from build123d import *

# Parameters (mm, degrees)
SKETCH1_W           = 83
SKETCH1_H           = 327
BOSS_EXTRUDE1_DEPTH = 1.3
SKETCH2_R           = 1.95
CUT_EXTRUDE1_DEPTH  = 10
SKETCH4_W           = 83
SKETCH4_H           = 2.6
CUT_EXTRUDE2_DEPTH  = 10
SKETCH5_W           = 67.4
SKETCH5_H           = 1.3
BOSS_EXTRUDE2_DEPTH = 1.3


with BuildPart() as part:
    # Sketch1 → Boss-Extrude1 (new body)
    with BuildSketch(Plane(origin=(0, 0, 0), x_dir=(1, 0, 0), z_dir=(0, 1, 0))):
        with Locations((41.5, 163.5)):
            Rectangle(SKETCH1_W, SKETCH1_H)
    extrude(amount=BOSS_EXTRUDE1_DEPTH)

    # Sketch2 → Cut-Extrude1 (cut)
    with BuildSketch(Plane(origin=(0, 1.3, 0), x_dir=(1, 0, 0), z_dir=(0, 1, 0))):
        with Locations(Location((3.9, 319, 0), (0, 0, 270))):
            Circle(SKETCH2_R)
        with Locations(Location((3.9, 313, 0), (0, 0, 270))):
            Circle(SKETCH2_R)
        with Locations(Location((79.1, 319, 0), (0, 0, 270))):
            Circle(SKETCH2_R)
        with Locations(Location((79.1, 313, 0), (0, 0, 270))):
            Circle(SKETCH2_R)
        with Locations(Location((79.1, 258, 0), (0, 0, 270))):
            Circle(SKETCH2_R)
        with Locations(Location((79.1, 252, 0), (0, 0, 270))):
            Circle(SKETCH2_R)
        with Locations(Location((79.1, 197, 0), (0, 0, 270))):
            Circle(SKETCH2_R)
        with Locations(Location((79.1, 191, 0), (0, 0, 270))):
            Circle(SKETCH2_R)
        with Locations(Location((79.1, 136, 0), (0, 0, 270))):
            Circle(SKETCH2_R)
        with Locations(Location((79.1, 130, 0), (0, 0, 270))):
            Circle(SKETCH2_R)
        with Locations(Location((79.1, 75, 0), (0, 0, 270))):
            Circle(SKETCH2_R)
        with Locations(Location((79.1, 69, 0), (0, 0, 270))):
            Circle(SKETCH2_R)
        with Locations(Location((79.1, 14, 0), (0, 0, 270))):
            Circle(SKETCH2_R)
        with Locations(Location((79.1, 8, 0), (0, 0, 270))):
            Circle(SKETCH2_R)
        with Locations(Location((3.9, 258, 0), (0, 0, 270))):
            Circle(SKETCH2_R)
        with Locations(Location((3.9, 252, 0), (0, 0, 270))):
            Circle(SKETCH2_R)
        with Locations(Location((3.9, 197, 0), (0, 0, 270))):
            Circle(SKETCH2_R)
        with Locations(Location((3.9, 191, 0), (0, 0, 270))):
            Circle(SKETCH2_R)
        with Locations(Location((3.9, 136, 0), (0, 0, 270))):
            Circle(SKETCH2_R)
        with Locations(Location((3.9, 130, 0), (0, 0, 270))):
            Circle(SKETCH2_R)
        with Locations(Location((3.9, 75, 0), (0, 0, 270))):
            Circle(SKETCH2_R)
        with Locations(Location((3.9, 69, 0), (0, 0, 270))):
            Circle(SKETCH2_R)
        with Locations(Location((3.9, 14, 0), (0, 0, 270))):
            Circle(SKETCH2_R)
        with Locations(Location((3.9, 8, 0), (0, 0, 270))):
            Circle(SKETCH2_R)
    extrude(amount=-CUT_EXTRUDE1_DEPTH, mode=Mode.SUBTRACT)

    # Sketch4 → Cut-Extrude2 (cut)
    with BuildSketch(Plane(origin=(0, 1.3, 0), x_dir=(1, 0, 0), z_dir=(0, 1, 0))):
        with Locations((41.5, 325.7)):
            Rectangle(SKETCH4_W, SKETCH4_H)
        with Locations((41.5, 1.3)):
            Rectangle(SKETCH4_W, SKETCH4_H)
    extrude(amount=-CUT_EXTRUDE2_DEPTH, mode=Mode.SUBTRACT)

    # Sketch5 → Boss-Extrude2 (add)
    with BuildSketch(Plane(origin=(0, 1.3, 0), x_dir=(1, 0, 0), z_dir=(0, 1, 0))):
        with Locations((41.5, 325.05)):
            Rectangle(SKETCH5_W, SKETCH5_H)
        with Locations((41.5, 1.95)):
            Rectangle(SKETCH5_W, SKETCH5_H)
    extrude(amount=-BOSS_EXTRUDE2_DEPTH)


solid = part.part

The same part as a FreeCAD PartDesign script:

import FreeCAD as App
import Part
import Sketcher
from FreeCAD import Vector
Q = App.Units.Quantity

doc = App.newDocument("Part")
body = doc.addObject("PartDesign::Body", "Body")

# Sketch on XZ plane
sketch1 = body.newObject("Sketcher::SketchObject", "Sketch")
sketch1.AttachmentSupport = (doc.getObject("XZ_Plane"), [""])
sketch1.MapMode = "FlatFace"
sketch1.addGeometry([
    Part.LineSegment(Vector(0, -327, 0), Vector(0, 0, 0)),
    Part.LineSegment(Vector(0, 0, 0), Vector(83, 0, 0)),
    Part.LineSegment(Vector(83, 0, 0), Vector(83, -327, 0)),
    Part.LineSegment(Vector(83, -327, 0), Vector(0, -327, 0)),
], False)
sketch1.addConstraint([
    Sketcher.Constraint("Coincident", 0, 2, 1, 1),
    Sketcher.Constraint("Coincident", 1, 2, 2, 1),
    Sketcher.Constraint("Coincident", 2, 2, 3, 1),
    Sketcher.Constraint("Coincident", 3, 2, 0, 1),
    Sketcher.Constraint("Vertical", 0),
    Sketcher.Constraint("Horizontal", 1),
    Sketcher.Constraint("Vertical", 2),
    Sketcher.Constraint("Horizontal", 3),
    Sketcher.Constraint("Coincident", 0, 2, -1, 1),
    Sketcher.Constraint("DistanceX", 1, 1, 1, 2, Q("83 mm")),
    Sketcher.Constraint("DistanceY", 0, 1, 0, 2, Q("327 mm")),
])
pad1 = body.newObject("PartDesign::Pad", "Pad")
pad1.Profile = sketch1
pad1.Length = 1.3
pad1.Reversed = True

# Sketch on XZ plane
sketch2 = body.newObject("Sketcher::SketchObject", "Sketch001")
sketch2.AttachmentSupport = (doc.getObject("XZ_Plane"), [""])
sketch2.MapMode = "FlatFace"
sketch2.AttachmentOffset = App.Placement(Vector(0, 0, -1.3), App.Rotation())
sketch2.addGeometry([
    Part.Circle(Vector(3.9, -319, 0), Vector(0, 0, 1), 1.9),  # 0
    Part.Circle(Vector(3.9, -313, 0), Vector(0, 0, 1), 1.9),  # 1
    Part.Circle(Vector(79.1, -319, 0), Vector(0, 0, 1), 1.9),  # 2
    Part.Circle(Vector(79.1, -313, 0), Vector(0, 0, 1), 1.9),  # 3
    Part.Circle(Vector(79.1, -258, 0), Vector(0, 0, 1), 1.9),  # 4
    Part.Circle(Vector(79.1, -252, 0), Vector(0, 0, 1), 1.9),  # 5
    Part.Circle(Vector(79.1, -197, 0), Vector(0, 0, 1), 1.9),  # 6
    Part.Circle(Vector(79.1, -191, 0), Vector(0, 0, 1), 1.9),  # 7
    Part.Circle(Vector(79.1, -136, 0), Vector(0, 0, 1), 1.9),  # 8
    Part.Circle(Vector(79.1, -130, 0), Vector(0, 0, 1), 1.9),  # 9
    Part.Circle(Vector(79.1, -75, 0), Vector(0, 0, 1), 1.9),  # 10
    Part.Circle(Vector(79.1, -69, 0), Vector(0, 0, 1), 1.9),  # 11
    Part.Circle(Vector(79.1, -14, 0), Vector(0, 0, 1), 1.9),  # 12
    Part.Circle(Vector(79.1, -8, 0), Vector(0, 0, 1), 1.9),  # 13
    Part.Circle(Vector(3.9, -258, 0), Vector(0, 0, 1), 1.9),  # 14
    Part.Circle(Vector(3.9, -252, 0), Vector(0, 0, 1), 1.9),  # 15
    Part.Circle(Vector(3.9, -197, 0), Vector(0, 0, 1), 1.9),  # 16
    Part.Circle(Vector(3.9, -191, 0), Vector(0, 0, 1), 1.9),  # 17
    Part.Circle(Vector(3.9, -136, 0), Vector(0, 0, 1), 1.9),  # 18
    Part.Circle(Vector(3.9, -130, 0), Vector(0, 0, 1), 1.9),  # 19
    Part.Circle(Vector(3.9, -75, 0), Vector(0, 0, 1), 1.9),  # 20
    Part.Circle(Vector(3.9, -69, 0), Vector(0, 0, 1), 1.9),  # 21
    Part.Circle(Vector(3.9, -14, 0), Vector(0, 0, 1), 1.9),  # 22
    Part.Circle(Vector(3.9, -8, 0), Vector(0, 0, 1), 1.9),  # 23
], False)
sketch2.addConstraint([
    Sketcher.Constraint("Equal", 0, 1),
    Sketcher.Constraint("Equal", 1, 2),
    Sketcher.Constraint("Equal", 2, 3),
    Sketcher.Constraint("Equal", 3, 4),
    Sketcher.Constraint("Equal", 4, 5),
    Sketcher.Constraint("Equal", 5, 6),
    Sketcher.Constraint("Equal", 6, 7),
    Sketcher.Constraint("Equal", 7, 8),
    Sketcher.Constraint("Equal", 8, 9),
    Sketcher.Constraint("Equal", 9, 10),
    Sketcher.Constraint("Equal", 10, 11),
    Sketcher.Constraint("Equal", 11, 12),
    Sketcher.Constraint("Equal", 12, 13),
    Sketcher.Constraint("Equal", 13, 14),
    Sketcher.Constraint("Equal", 14, 15),
    Sketcher.Constraint("Equal", 15, 16),
    Sketcher.Constraint("Equal", 16, 17),
    Sketcher.Constraint("Equal", 17, 18),
    Sketcher.Constraint("Equal", 18, 19),
    Sketcher.Constraint("Equal", 19, 20),
    Sketcher.Constraint("Equal", 20, 21),
    Sketcher.Constraint("Equal", 21, 22),
    Sketcher.Constraint("Equal", 22, 23),
    Sketcher.Constraint("Horizontal", 0, 3, 2, 3),
    Sketcher.Constraint("Horizontal", 1, 3, 3, 3),
    Sketcher.Constraint("Horizontal", 4, 3, 14, 3),
    Sketcher.Constraint("Horizontal", 5, 3, 15, 3),
    Sketcher.Constraint("Horizontal", 6, 3, 16, 3),
    Sketcher.Constraint("Horizontal", 7, 3, 17, 3),
    Sketcher.Constraint("Horizontal", 8, 3, 18, 3),
    Sketcher.Constraint("Horizontal", 9, 3, 19, 3),
    Sketcher.Constraint("Horizontal", 10, 3, 20, 3),
    Sketcher.Constraint("Horizontal", 11, 3, 21, 3),
    Sketcher.Constraint("Horizontal", 12, 3, 22, 3),
    Sketcher.Constraint("Horizontal", 13, 3, 23, 3),
    Sketcher.Constraint("Vertical", 0, 3, 1, 3),
    Sketcher.Constraint("Vertical", 2, 3, 3, 3),
    Sketcher.Constraint("Vertical", 3, 3, 4, 3),
    Sketcher.Constraint("Vertical", 4, 3, 5, 3),
    Sketcher.Constraint("Vertical", 5, 3, 6, 3),
    Sketcher.Constraint("Vertical", 6, 3, 7, 3),
    Sketcher.Constraint("Vertical", 7, 3, 8, 3),
    Sketcher.Constraint("Vertical", 8, 3, 9, 3),
    Sketcher.Constraint("Vertical", 9, 3, 10, 3),
    Sketcher.Constraint("Vertical", 10, 3, 11, 3),
    Sketcher.Constraint("Vertical", 11, 3, 12, 3),
    Sketcher.Constraint("Vertical", 12, 3, 13, 3),
    Sketcher.Constraint("Vertical", 1, 3, 14, 3),
    Sketcher.Constraint("Vertical", 14, 3, 15, 3),
    Sketcher.Constraint("Vertical", 15, 3, 16, 3),
    Sketcher.Constraint("Vertical", 16, 3, 17, 3),
    Sketcher.Constraint("Vertical", 17, 3, 18, 3),
    Sketcher.Constraint("Vertical", 18, 3, 19, 3),
    Sketcher.Constraint("Vertical", 19, 3, 20, 3),
    Sketcher.Constraint("Vertical", 20, 3, 21, 3),
    Sketcher.Constraint("Vertical", 21, 3, 22, 3),
    Sketcher.Constraint("Vertical", 22, 3, 23, 3),
    Sketcher.Constraint("Diameter", 0, Q("3.9 mm")),
    Sketcher.Constraint("DistanceY", 0, 3, -1, 1, Q("319 mm")),
    Sketcher.Constraint("DistanceY", 1, 3, -1, 1, Q("313 mm")),
    Sketcher.Constraint("DistanceY", 4, 3, -1, 1, Q("258 mm")),
    Sketcher.Constraint("DistanceY", 5, 3, -1, 1, Q("252 mm")),
    Sketcher.Constraint("DistanceY", 6, 3, -1, 1, Q("197 mm")),
    Sketcher.Constraint("DistanceY", 7, 3, -1, 1, Q("191 mm")),
    Sketcher.Constraint("DistanceY", 8, 3, -1, 1, Q("136 mm")),
    Sketcher.Constraint("DistanceY", 9, 3, -1, 1, Q("130 mm")),
    Sketcher.Constraint("DistanceY", 10, 3, -1, 1, Q("75 mm")),
    Sketcher.Constraint("DistanceY", 11, 3, -1, 1, Q("69 mm")),
    Sketcher.Constraint("DistanceY", 12, 3, -1, 1, Q("14 mm")),
    Sketcher.Constraint("DistanceY", 13, 3, -1, 1, Q("8 mm")),
    Sketcher.Constraint("DistanceX", -1, 1, 0, 3, Q("3.9 mm")),
    Sketcher.Constraint("DistanceX", -1, 1, 2, 3, Q("79.1 mm")),
])
pocket1 = body.newObject("PartDesign::Pocket", "Pocket")
pocket1.Profile = sketch2
pocket1.Length = 10
pocket1.Reversed = True

# Sketch on XZ plane
sketch3 = body.newObject("Sketcher::SketchObject", "Sketch002")
sketch3.AttachmentSupport = (doc.getObject("XZ_Plane"), [""])
sketch3.MapMode = "FlatFace"
sketch3.AttachmentOffset = App.Placement(Vector(0, 0, -1.3), App.Rotation())
sketch3.addGeometry([
    Part.LineSegment(Vector(0, -327, 0), Vector(0, -324.4, 0)),  # 0
    Part.LineSegment(Vector(0, -324.4, 0), Vector(83, -324.4, 0)),  # 1
    Part.LineSegment(Vector(83, -324.4, 0), Vector(83, -327, 0)),  # 2
    Part.LineSegment(Vector(83, -327, 0), Vector(0, -327, 0)),  # 3
    Part.LineSegment(Vector(0, -2.6, 0), Vector(0, 0, 0)),  # 4
    Part.LineSegment(Vector(0, 0, 0), Vector(83, 0, 0)),  # 5
    Part.LineSegment(Vector(83, 0, 0), Vector(83, -2.6, 0)),  # 6
    Part.LineSegment(Vector(83, -2.6, 0), Vector(0, -2.6, 0)),  # 7
], False)
sketch3.addConstraint([
    Sketcher.Constraint("Coincident", 0, 2, 1, 1),
    Sketcher.Constraint("Coincident", 1, 2, 2, 1),
    Sketcher.Constraint("Coincident", 2, 2, 3, 1),
    Sketcher.Constraint("Coincident", 3, 2, 0, 1),
    Sketcher.Constraint("Coincident", 4, 2, 5, 1),
    Sketcher.Constraint("Coincident", 5, 2, 6, 1),
    Sketcher.Constraint("Coincident", 6, 2, 7, 1),
    Sketcher.Constraint("Coincident", 7, 2, 4, 1),
    Sketcher.Constraint("Vertical", 0),
    Sketcher.Constraint("Horizontal", 1),
    Sketcher.Constraint("Vertical", 2),
    Sketcher.Constraint("Horizontal", 3),
    Sketcher.Constraint("Vertical", 4),
    Sketcher.Constraint("Horizontal", 5),
    Sketcher.Constraint("Vertical", 6),
    Sketcher.Constraint("Horizontal", 7),
    Sketcher.Constraint("Coincident", 4, 2, -1, 1),
    Sketcher.Constraint("PointOnObject", 0, 2, -2),
    Sketcher.Constraint("Vertical", 2, 2, 5, 2),
    Sketcher.Constraint("Equal", 2, 4),
    Sketcher.Constraint("DistanceX", 1, 1, 1, 2, Q("83 mm")),
    Sketcher.Constraint("DistanceY", 0, 1, 0, 2, Q("2.6 mm")),
    Sketcher.Constraint("DistanceY", 2, 2, -1, 1, Q("327 mm")),
])
pocket2 = body.newObject("PartDesign::Pocket", "Pocket001")
pocket2.Profile = sketch3
pocket2.Length = 10
pocket2.Reversed = True

# Sketch on XZ plane
sketch4 = body.newObject("Sketcher::SketchObject", "Sketch003")
sketch4.AttachmentSupport = (doc.getObject("XZ_Plane"), [""])
sketch4.MapMode = "FlatFace"
sketch4.AttachmentOffset = App.Placement(Vector(0, 0, -1.3), App.Rotation())
sketch4.addGeometry([
    Part.LineSegment(Vector(7.8, -325.7, 0), Vector(7.8, -324.4, 0)),  # 0
    Part.LineSegment(Vector(7.8, -324.4, 0), Vector(75.2, -324.4, 0)),  # 1
    Part.LineSegment(Vector(75.2, -324.4, 0), Vector(75.2, -325.7, 0)),  # 2
    Part.LineSegment(Vector(75.2, -325.7, 0), Vector(7.8, -325.7, 0)),  # 3
    Part.LineSegment(Vector(7.8, -2.6, 0), Vector(7.8, -1.3, 0)),  # 4
    Part.LineSegment(Vector(7.8, -1.3, 0), Vector(75.2, -1.3, 0)),  # 5
    Part.LineSegment(Vector(75.2, -1.3, 0), Vector(75.2, -2.6, 0)),  # 6
    Part.LineSegment(Vector(75.2, -2.6, 0), Vector(7.8, -2.6, 0)),  # 7
], False)
sketch4.addConstraint([
    Sketcher.Constraint("Coincident", 0, 2, 1, 1),
    Sketcher.Constraint("Coincident", 1, 2, 2, 1),
    Sketcher.Constraint("Coincident", 2, 2, 3, 1),
    Sketcher.Constraint("Coincident", 3, 2, 0, 1),
    Sketcher.Constraint("Coincident", 4, 2, 5, 1),
    Sketcher.Constraint("Coincident", 5, 2, 6, 1),
    Sketcher.Constraint("Coincident", 6, 2, 7, 1),
    Sketcher.Constraint("Coincident", 7, 2, 4, 1),
    Sketcher.Constraint("Vertical", 0),
    Sketcher.Constraint("Horizontal", 1),
    Sketcher.Constraint("Vertical", 2),
    Sketcher.Constraint("Horizontal", 3),
    Sketcher.Constraint("Vertical", 4),
    Sketcher.Constraint("Horizontal", 5),
    Sketcher.Constraint("Vertical", 6),
    Sketcher.Constraint("Horizontal", 7),
    Sketcher.Constraint("Vertical", 3, 2, 4, 2),
    Sketcher.Constraint("Vertical", 2, 2, 5, 2),
    Sketcher.Constraint("Equal", 2, 4),
    Sketcher.Constraint("DistanceX", 1, 1, 1, 2, Q("67.4 mm")),
    Sketcher.Constraint("DistanceY", 0, 1, 0, 2, Q("1.3 mm")),
    Sketcher.Constraint("DistanceX", -1, 1, 0, 2, Q("7.8 mm")),
    Sketcher.Constraint("DistanceY", 0, 2, -1, 1, Q("324.4 mm")),
    Sketcher.Constraint("DistanceY", 4, 2, -1, 1, Q("1.3 mm")),
])
pad2 = body.newObject("PartDesign::Pad", "Pad001")
pad2.Profile = sketch4
pad2.Length = 1.3

doc.recompute()
